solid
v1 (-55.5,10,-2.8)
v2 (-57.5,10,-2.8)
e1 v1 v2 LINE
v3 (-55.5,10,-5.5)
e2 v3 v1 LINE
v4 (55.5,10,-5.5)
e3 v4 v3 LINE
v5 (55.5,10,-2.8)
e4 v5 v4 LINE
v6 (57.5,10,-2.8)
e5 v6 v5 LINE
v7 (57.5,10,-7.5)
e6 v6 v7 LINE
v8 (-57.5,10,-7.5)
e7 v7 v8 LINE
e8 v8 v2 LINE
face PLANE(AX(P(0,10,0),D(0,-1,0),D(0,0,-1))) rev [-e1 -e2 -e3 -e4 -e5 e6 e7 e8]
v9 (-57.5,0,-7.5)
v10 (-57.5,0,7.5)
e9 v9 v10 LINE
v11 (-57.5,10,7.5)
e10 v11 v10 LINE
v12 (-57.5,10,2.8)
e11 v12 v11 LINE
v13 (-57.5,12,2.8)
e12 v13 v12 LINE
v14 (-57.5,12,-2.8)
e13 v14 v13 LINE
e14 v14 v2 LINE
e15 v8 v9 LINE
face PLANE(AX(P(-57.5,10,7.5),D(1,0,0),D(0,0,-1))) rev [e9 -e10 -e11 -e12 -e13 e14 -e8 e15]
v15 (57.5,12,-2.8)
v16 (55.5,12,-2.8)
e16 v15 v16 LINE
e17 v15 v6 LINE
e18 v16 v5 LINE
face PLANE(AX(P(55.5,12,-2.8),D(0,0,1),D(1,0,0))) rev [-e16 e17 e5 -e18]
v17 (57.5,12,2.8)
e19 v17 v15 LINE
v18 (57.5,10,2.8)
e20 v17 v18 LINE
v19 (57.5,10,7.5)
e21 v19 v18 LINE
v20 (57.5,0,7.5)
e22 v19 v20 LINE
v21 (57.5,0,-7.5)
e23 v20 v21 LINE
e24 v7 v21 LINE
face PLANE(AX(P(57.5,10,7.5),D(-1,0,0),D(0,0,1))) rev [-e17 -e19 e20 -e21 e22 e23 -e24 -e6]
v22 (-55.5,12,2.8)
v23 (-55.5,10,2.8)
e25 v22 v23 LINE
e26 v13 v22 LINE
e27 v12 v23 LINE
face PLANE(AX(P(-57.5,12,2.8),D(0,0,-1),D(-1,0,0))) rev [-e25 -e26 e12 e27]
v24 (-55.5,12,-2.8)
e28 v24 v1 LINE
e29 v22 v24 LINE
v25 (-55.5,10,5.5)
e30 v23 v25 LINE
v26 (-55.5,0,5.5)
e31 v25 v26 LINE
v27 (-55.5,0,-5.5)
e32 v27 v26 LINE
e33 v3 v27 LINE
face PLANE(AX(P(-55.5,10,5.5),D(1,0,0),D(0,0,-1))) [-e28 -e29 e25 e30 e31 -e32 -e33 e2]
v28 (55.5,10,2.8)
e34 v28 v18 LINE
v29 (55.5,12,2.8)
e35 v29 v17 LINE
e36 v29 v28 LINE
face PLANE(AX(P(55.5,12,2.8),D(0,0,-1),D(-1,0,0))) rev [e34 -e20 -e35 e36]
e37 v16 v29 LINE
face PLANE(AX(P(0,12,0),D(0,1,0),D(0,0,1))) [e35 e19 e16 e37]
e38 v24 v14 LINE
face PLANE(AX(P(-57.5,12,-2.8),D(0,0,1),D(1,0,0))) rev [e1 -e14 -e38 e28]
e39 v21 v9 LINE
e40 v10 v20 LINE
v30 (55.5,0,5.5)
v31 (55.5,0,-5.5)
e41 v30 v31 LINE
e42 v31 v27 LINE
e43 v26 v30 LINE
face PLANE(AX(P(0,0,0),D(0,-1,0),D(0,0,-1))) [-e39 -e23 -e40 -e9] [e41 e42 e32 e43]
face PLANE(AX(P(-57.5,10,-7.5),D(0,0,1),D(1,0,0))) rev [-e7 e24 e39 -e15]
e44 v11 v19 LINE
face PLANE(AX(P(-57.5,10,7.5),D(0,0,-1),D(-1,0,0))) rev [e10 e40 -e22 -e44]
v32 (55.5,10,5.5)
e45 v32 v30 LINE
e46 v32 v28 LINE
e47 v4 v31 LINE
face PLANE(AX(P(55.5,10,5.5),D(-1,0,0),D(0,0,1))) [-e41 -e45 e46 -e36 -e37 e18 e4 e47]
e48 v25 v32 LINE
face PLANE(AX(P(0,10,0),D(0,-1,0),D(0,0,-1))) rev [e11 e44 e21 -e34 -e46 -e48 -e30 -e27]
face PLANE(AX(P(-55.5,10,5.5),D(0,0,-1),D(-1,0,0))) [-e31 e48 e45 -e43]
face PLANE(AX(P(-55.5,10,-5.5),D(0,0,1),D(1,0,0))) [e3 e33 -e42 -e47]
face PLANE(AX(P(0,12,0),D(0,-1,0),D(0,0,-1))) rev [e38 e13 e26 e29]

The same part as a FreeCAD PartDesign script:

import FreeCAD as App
import Part
import Sketcher

V = App.Vector
Q = App.Units.Quantity

doc = App.newDocument("Part")
body = doc.addObject("PartDesign::Body", "Body")

# Sketch on XZ plane
sketch1 = body.newObject("Sketcher::SketchObject", "Sketch")
sketch1.AttachmentSupport = (doc.getObject("XZ_Plane"), [""])
sketch1.MapMode = "FlatFace"
sketch1.addGeometry(Part.LineSegment(V(-58, -8, 0), V(-58, 8, 0)), False)
sketch1.addGeometry(Part.LineSegment(V(-58, 8, 0), V(58, 8, 0)), False)
sketch1.addGeometry(Part.LineSegment(V(58, 8, 0), V(58, -8, 0)), False)
sketch1.addGeometry(Part.LineSegment(V(58, -8, 0), V(-58, -8, 0)), False)
sketch1.addGeometry(Part.LineSegment(V(56, 6, 0), V(-56, 6, 0)), False)
sketch1.addGeometry(Part.LineSegment(V(-56, 6, 0), V(-56, -6, 0)), False)
sketch1.addGeometry(Part.LineSegment(V(-56, -6, 0), V(56, -6, 0)), False)
sketch1.addGeometry(Part.LineSegment(V(56, -6, 0), V(56, 6, 0)), False)
sketch1.addConstraint(Sketcher.Constraint("Coincident", 0, 2, 1, 1))
sketch1.addConstraint(Sketcher.Constraint("Coincident", 1, 2, 2, 1))
sketch1.addConstraint(Sketcher.Constraint("Coincident", 2, 2, 3, 1))
sketch1.addConstraint(Sketcher.Constraint("Coincident", 3, 2, 0, 1))
sketch1.addConstraint(Sketcher.Constraint("Coincident", 4, 2, 5, 1))
sketch1.addConstraint(Sketcher.Constraint("Coincident", 5, 2, 6, 1))
sketch1.addConstraint(Sketcher.Constraint("Coincident", 6, 2, 7, 1))
sketch1.addConstraint(Sketcher.Constraint("Coincident", 7, 2, 4, 1))
sketch1.addConstraint(Sketcher.Constraint("Vertical", 0))
sketch1.addConstraint(Sketcher.Constraint("Horizontal", 1))
sketch1.addConstraint(Sketcher.Constraint("Vertical", 2))
sketch1.addConstraint(Sketcher.Constraint("Horizontal", 3))
sketch1.addConstraint(Sketcher.Constraint("Horizontal", 4))
sketch1.addConstraint(Sketcher.Constraint("Vertical", 5))
sketch1.addConstraint(Sketcher.Constraint("Horizontal", 6))
sketch1.addConstraint(Sketcher.Constraint("Vertical", 7))
sketch1.addConstraint(Sketcher.Constraint("Symmetric", 0, 2, 2, 2, -1, 1))
sketch1.addConstraint(Sketcher.Constraint("Symmetric", 4, 2, 6, 2, -1, 1))
sketch1.addConstraint(Sketcher.Constraint("DistanceX", 1, 1, 1, 2, Q("115 mm")))
sketch1.addConstraint(Sketcher.Constraint("DistanceX", 4, 2, 4, 1, Q("111 mm")))
sketch1.addConstraint(Sketcher.Constraint("DistanceY", 0, 1, 0, 2, Q("15 mm")))
sketch1.addConstraint(Sketcher.Constraint("DistanceY", 5, 2, 5, 1, Q("11 mm")))
pad1 = body.newObject("PartDesign::Pad", "Pad")
pad1.Profile = sketch1
pad1.Length = 10
pad1.Reversed = True

# Sketch on XZ plane
sketch2 = body.newObject("Sketcher::SketchObject", "Sketch001")
sketch2.AttachmentSupport = (doc.getObject("XZ_Plane"), [""])
sketch2.MapMode = "FlatFace"
sketch2.AttachmentOffset = App.Placement(V(0, 0, -10), App.Rotation())
sketch2.addGeometry(Part.LineSegment(V(-57.5, -2.8, 0), V(-57.5, 2.8, 0)), False)
sketch2.addGeometry(Part.LineSegment(V(-57.5, 2.8, 0), V(-55.5, 2.8, 0)), False)
sketch2.addGeometry(Part.LineSegment(V(-55.5, 2.8, 0), V(-55.5, -2.8, 0)), False)
sketch2.addGeometry(Part.LineSegment(V(-55.5, -2.8, 0), V(-57.5, -2.8, 0)), False)
sketch2.addGeometry(Part.LineSegment(V(55.5, -2.8, 0), V(55.5, 2.8, 0)), False)
sketch2.addGeometry(Part.LineSegment(V(55.5, 2.8, 0), V(57.5, 2.8, 0)), False)
sketch2.addGeometry(Part.LineSegment(V(57.5, 2.8, 0), V(57.5, -2.8, 0)), False)
sketch2.addGeometry(Part.LineSegment(V(57.5, -2.8, 0), V(55.5, -2.8, 0)), False)
sketch2.addConstraint(Sketcher.Constraint("Coincident", 0, 2, 1, 1))
sketch2.addConstraint(Sketcher.Constraint("Coincident", 1, 2, 2, 1))
sketch2.addConstraint(Sketcher.Constraint("Coincident", 2, 2, 3, 1))
sketch2.addConstraint(Sketcher.Constraint("Coincident", 3, 2, 0, 1))
sketch2.addConstraint(Sketcher.Constraint("Coincident", 4, 2, 5, 1))
sketch2.addConstraint(Sketcher.Constraint("Coincident", 5, 2, 6, 1))
sketch2.addConstraint(Sketcher.Constraint("Coincident", 6, 2, 7, 1))
sketch2.addConstraint(Sketcher.Constraint("Coincident", 7, 2, 4, 1))
sketch2.addConstraint(Sketcher.Constraint("Vertical", 0))
sketch2.addConstraint(Sketcher.Constraint("Horizontal", 1))
sketch2.addConstraint(Sketcher.Constraint("Vertical", 2))
sketch2.addConstraint(Sketcher.Constraint("Horizontal", 3))
sketch2.addConstraint(Sketcher.Constraint("Vertical", 4))
sketch2.addConstraint(Sketcher.Constraint("Horizontal", 5))
sketch2.addConstraint(Sketcher.Constraint("Vertical", 6))
sketch2.addConstraint(Sketcher.Constraint("Horizontal", 7))
sketch2.addConstraint(Sketcher.Constraint("Symmetric", 2, 2, 4, 2, -1, 1))
sketch2.addConstraint(Sketcher.Constraint("Symmetric", 0, 2, 6, 2, -1, 1))
sketch2.addConstraint(Sketcher.Constraint("Horizontal", 1, 2, 4, 2))
sketch2.addConstraint(Sketcher.Constraint("DistanceX", 1, 1, 1, 2, Q("2 mm")))
sketch2.addConstraint(Sketcher.Constraint("DistanceY", 0, 1, 0, 2, Q("5.6 mm")))
sketch2.addConstraint(Sketcher.Constraint("DistanceX", 1, 2, 4, 2, Q("111 mm")))
pad2 = body.newObject("PartDesign::Pad", "Pad001")
pad2.Profile = sketch2
pad2.Length = 2
pad2.Reversed = True

doc.recompute()
